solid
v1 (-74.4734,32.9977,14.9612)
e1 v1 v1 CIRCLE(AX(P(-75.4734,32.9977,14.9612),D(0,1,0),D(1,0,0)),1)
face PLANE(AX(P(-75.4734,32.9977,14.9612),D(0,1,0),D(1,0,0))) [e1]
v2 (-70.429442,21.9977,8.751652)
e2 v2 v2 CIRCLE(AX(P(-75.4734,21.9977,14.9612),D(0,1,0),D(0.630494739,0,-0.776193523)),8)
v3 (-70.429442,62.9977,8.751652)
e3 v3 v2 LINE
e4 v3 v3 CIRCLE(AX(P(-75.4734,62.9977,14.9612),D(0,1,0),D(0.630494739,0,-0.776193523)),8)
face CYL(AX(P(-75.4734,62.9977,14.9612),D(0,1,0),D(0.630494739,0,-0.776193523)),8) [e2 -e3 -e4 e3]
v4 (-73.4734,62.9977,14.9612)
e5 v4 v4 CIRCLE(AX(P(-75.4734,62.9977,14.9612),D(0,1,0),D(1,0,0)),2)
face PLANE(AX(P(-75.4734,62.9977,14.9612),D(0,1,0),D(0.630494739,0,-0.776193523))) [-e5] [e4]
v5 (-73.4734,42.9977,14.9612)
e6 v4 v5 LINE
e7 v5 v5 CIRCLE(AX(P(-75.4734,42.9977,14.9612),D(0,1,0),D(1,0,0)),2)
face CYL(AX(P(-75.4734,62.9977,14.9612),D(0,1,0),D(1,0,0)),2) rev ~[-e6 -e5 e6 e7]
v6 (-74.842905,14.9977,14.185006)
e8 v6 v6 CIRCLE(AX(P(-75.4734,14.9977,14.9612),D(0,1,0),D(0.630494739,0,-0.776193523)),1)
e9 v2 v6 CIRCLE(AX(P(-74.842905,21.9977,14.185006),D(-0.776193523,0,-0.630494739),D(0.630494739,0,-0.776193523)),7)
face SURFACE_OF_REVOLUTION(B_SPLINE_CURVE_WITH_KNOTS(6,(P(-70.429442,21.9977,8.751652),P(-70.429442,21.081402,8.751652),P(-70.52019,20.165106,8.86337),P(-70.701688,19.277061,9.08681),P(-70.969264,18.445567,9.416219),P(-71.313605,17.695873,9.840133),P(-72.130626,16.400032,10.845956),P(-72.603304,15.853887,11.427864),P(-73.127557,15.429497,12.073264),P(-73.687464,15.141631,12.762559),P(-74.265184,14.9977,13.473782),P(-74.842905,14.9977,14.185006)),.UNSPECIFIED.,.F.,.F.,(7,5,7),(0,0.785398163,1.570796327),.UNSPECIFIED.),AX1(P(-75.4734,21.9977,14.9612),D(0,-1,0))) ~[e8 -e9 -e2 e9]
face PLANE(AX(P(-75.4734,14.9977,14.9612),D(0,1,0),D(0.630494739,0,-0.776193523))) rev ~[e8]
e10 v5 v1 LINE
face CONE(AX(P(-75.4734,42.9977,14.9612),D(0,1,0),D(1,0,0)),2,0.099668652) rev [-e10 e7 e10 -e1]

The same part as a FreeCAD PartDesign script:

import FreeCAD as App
import Part
import Sketcher
from FreeCAD import Vector
Q = App.Units.Quantity


def edges_at(feature, points):
    """Names of the edges that pass closest to the given points."""
    edges = feature.Shape.Edges
    near = lambda p: min(range(len(edges)), key=lambda i: edges[i].distToShape(Part.Vertex(*p))[0])
    return sorted({f"Edge{near(p) + 1}" for p in points})

doc = App.newDocument("Part")
body = doc.addObject("PartDesign::Body", "Body")

# Sketch on XZ plane
sketch1 = body.newObject("Sketcher::SketchObject", "Sketch")
sketch1.AttachmentSupport = (doc.getObject("XZ_Plane"), [""])
sketch1.MapMode = "FlatFace"
sketch1.AttachmentOffset = App.Placement(Vector(0, 0, -62.9977), App.Rotation())
sketch1.addGeometry(Part.Circle(Vector(-75, 15, 0), Vector(0, 0, 1), 8), False)
sketch1.addConstraint([
    Sketcher.Constraint("Diameter", 0, Q("16 mm")),
    Sketcher.Constraint("DistanceX", 0, 3, -1, 1, Q("75.4734 mm")),
    Sketcher.Constraint("DistanceY", -1, 1, 0, 3, Q("14.9612 mm")),
])
pad1 = body.newObject("PartDesign::Pad", "Pad")
pad1.Profile = sketch1
pad1.Length = 48
doc.recompute()

fillet = body.newObject("PartDesign::Fillet", "Fillet")
fillet.Base = (pad1, edges_at(pad1, [(-80.517, 14.998, 21.171)]))
fillet.Radius = 7

# Sketch on XZ plane
sketch2 = body.newObject("Sketcher::SketchObject", "Sketch001")
sketch2.AttachmentSupport = (doc.getObject("XZ_Plane"), [""])
sketch2.MapMode = "FlatFace"
sketch2.AttachmentOffset = App.Placement(Vector(0, 0, -62.9977), App.Rotation())
sketch2.addGeometry(Part.Circle(Vector(-75.5, 15, 0), Vector(0, 0, 1), 2), False)
sketch2.addConstraint([
    Sketcher.Constraint("Diameter", 0, Q("4 mm")),
    Sketcher.Constraint("DistanceX", 0, 3, -1, 1, Q("75.4734 mm")),
    Sketcher.Constraint("DistanceY", -1, 1, 0, 3, Q("14.9612 mm")),
])
pocket1 = body.newObject("PartDesign::Pocket", "Pocket")
pocket1.Profile = sketch2
pocket1.Length = 30
pocket1.Reversed = True
doc.recompute()

chamfer = body.newObject("PartDesign::Chamfer", "Chamfer")
chamfer.Base = (pocket1, edges_at(pocket1, [(-77.473, 32.998, 14.961)]))
chamfer.ChamferType = "Two distances"
chamfer.Size = 10
chamfer.Size2 = 1

doc.recompute()
